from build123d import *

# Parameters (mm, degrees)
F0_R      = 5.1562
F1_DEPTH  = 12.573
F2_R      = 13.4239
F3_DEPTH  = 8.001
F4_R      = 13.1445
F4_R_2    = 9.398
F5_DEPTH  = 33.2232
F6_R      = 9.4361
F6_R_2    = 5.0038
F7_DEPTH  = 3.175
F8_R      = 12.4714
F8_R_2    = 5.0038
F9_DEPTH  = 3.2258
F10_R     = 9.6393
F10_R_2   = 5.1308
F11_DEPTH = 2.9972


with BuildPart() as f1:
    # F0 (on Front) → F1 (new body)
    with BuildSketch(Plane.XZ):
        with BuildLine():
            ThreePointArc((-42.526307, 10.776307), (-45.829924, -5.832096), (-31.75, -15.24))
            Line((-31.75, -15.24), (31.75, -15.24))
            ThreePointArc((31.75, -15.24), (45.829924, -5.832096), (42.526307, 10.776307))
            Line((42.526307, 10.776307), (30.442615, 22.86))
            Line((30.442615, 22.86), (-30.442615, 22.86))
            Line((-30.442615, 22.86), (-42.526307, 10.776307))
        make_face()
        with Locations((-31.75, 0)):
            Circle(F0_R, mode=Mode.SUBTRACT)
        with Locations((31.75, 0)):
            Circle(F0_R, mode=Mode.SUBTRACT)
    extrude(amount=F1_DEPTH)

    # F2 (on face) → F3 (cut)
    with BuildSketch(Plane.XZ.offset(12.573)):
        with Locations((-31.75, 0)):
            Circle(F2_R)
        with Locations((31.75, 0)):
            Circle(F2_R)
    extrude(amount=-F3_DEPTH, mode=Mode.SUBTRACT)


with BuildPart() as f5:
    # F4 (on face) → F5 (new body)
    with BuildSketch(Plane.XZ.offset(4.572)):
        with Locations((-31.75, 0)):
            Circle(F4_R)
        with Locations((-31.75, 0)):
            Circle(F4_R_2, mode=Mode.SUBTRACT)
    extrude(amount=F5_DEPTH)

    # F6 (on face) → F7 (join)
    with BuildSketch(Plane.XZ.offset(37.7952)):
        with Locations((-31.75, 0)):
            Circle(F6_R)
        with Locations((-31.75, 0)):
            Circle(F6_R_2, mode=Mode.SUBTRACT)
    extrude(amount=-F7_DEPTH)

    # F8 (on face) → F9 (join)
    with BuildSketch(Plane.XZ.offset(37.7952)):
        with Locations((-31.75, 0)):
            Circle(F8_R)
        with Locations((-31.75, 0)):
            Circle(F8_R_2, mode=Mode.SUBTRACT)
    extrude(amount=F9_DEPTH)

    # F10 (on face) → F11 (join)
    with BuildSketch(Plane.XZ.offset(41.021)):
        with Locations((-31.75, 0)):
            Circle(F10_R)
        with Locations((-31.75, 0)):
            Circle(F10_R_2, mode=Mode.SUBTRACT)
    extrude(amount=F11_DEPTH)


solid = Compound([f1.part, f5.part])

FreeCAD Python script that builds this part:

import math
import FreeCAD as App
import Part
import Sketcher
from FreeCAD import Vector
Q = App.Units.Quantity

doc = App.newDocument("Part")
params = doc.addObject("Spreadsheet::Sheet", "Params")
for row, (alias, value) in enumerate([
    ("sketch1_radius", "0.6 in"),
    ("sketch1_diameter", "0.406 in"),
    ("sketch1_width", "2.5 in"),
    ("pad1_length", "0.495 in"),
    ("sketch2_diameter", "1.057 in"),
    ("pocket1_length", "0.315 in"),
    ("sketch3_diameter", "0.74 in"),
    ("sketch3_diameter2", "1.035 in"),
    ("pad2_length", "1.308 in"),
    ("sketch4_diameter", "0.743 in"),
    ("sketch4_diameter2", "0.394 in"),
    ("pad3_length", "0.125 in"),
    ("sketch5_diameter", "0.982 in"),
    ("sketch5_diameter2", "0.394 in"),
    ("pad4_length", "0.127 in"),
    ("sketch6_diameter", "0.759 in"),
    ("sketch6_diameter2", "0.404 in"),
    ("pad5_length", "0.118 in"),
], start=1):
    params.set(f"A{row}", alias)
    params.set(f"B{row}", "=" + value)
    params.setAlias(f"B{row}", alias)

body = doc.addObject("PartDesign::Body", "Body")

# Sketch on XZ plane
sketch1 = body.newObject("Sketcher::SketchObject", "Sketch")
sketch1.AttachmentSupport = (doc.getObject("XZ_Plane"), [""])
sketch1.MapMode = "FlatFace"
sketch1.addGeometry(Part.ArcOfCircle(Part.Circle(Vector(-32, 0, 0), Vector(0, 0, 1), 15), math.radians(135), math.radians(270)), False)
sketch1.addGeometry(Part.LineSegment(Vector(-32, -15, 0), Vector(32, -15, 0)), False)
sketch1.addGeometry(Part.ArcOfCircle(Part.Circle(Vector(32, 0, 0), Vector(0, 0, 1), 15), math.radians(-90), math.radians(45)), False)
sketch1.addGeometry(Part.LineSegment(Vector(43, 11, 0), Vector(30, 23, 0)), False)
sketch1.addGeometry(Part.LineSegment(Vector(30, 23, 0), Vector(-30, 23, 0)), False)
sketch1.addGeometry(Part.LineSegment(Vector(-30, 23, 0), Vector(-43, 11, 0)), False)
sketch1.addGeometry(Part.Circle(Vector(-32, 0, 0), Vector(0, 0, 1), 5), False)
sketch1.addGeometry(Part.Circle(Vector(32, 0, 0), Vector(0, 0, 1), 5), False)
sketch1.addConstraint(Sketcher.Constraint("Tangent", 0, 2, 1, 1))
sketch1.addConstraint(Sketcher.Constraint("Tangent", 1, 2, 2, 1))
sketch1.addConstraint(Sketcher.Constraint("Tangent", 2, 2, 3, 1))
sketch1.addConstraint(Sketcher.Constraint("Coincident", 3, 2, 4, 1))
sketch1.addConstraint(Sketcher.Constraint("Coincident", 4, 2, 5, 1))
sketch1.addConstraint(Sketcher.Constraint("Tangent", 5, 2, 0, 1))
sketch1.addConstraint(Sketcher.Constraint("Horizontal", 1))
sketch1.addConstraint(Sketcher.Constraint("Horizontal", 4))
sketch1.addConstraint(Sketcher.Constraint("Coincident", 6, 3, 0, 3))
sketch1.addConstraint(Sketcher.Constraint("Coincident", 7, 3, 2, 3))
sketch1.addConstraint(Sketcher.Constraint("Equal", 0, 2))
sketch1.addConstraint(Sketcher.Constraint("Equal", 6, 7))
sketch1.addConstraint(Sketcher.Constraint("Symmetric", 0, 3, 2, 3, -1, 1))
sketch1.addConstraint(Sketcher.Constraint("Perpendicular", 3, 5))
sketch1.addConstraint(Sketcher.Constraint("Horizontal", 2, 2, 5, 2))
sketch1.addConstraint(Sketcher.Constraint("Radius", 0, Q("0.6 in")))
sketch1.addConstraint(Sketcher.Constraint("Diameter", 6, Q("0.406 in")))
sketch1.addConstraint(Sketcher.Constraint("DistanceX", 1, 1, 1, 2, Q("2.5 in")))
sketch1.addConstraint(Sketcher.Constraint("DistanceY", -1, 1, 3, 2, Q("0.9 in")))
sketch1.setExpression("Constraints[15]", "Params.sketch1_radius")
sketch1.setExpression("Constraints[16]", "Params.sketch1_diameter")
sketch1.setExpression("Constraints[17]", "Params.sketch1_width")
pad1 = body.newObject("PartDesign::Pad", "Pad")
pad1.Profile = sketch1
pad1.setExpression("Length", "Params.pad1_length")

# Sketch on XZ plane
sketch2 = body.newObject("Sketcher::SketchObject", "Sketch001")
sketch2.AttachmentSupport = (doc.getObject("XZ_Plane"), [""])
sketch2.MapMode = "FlatFace"
sketch2.AttachmentOffset = App.Placement(Vector(0, 0, 0.495 * 25.4), App.Rotation())
sketch2.addGeometry(Part.Circle(Vector(-32, 0, 0), Vector(0, 0, 1), 13), False)
sketch2.addGeometry(Part.Circle(Vector(32, 0, 0), Vector(0, 0, 1), 13), False)
sketch2.addConstraint(Sketcher.Constraint("Equal", 0, 1))
sketch2.addConstraint(Sketcher.Constraint("Symmetric", 0, 3, 1, 3, -1, 1))
sketch2.addConstraint(Sketcher.Constraint("PointOnObject", 0, 3, -1))
sketch2.addConstraint(Sketcher.Constraint("Diameter", 0, Q("1.057 in")))
sketch2.addConstraint(Sketcher.Constraint("DistanceX", 0, 3, 1, 3, Q("2.5 in")))
sketch2.setExpression("Constraints[3]", "Params.sketch2_diameter")
pocket1 = body.newObject("PartDesign::Pocket", "Pocket")
pocket1.Profile = sketch2
pocket1.setExpression("Length", "Params.pocket1_length")
body2 = doc.addObject("PartDesign::Body", "Body001")

# Sketch on XZ plane
sketch3 = body2.newObject("Sketcher::SketchObject", "Sketch002")
sketch3.AttachmentSupport = (doc.getObject("XZ_Plane001"), [""])
sketch3.MapMode = "FlatFace"
sketch3.AttachmentOffset = App.Placement(Vector(0, 0, 0.18 * 25.4), App.Rotation())
sketch3.addGeometry(Part.Circle(Vector(-32, 0, 0), Vector(0, 0, 1), 13), False)
sketch3.addGeometry(Part.Circle(Vector(-32, 0, 0), Vector(0, 0, 1), 9), False)
sketch3.addConstraint(Sketcher.Constraint("Coincident", 1, 3, 0, 3))
sketch3.addConstraint(Sketcher.Constraint("PointOnObject", 0, 3, -1))
sketch3.addConstraint(Sketcher.Constraint("Diameter", 1, Q("0.74 in")))
sketch3.addConstraint(Sketcher.Constraint("Diameter", 0, Q("1.035 in")))
sketch3.addConstraint(Sketcher.Constraint("DistanceX", 0, 3, -1, 1, Q("1.25 in")))
sketch3.setExpression("Constraints[2]", "Params.sketch3_diameter")
sketch3.setExpression("Constraints[3]", "Params.sketch3_diameter2")
pad2 = body2.newObject("PartDesign::Pad", "Pad001")
pad2.Profile = sketch3
pad2.setExpression("Length", "Params.pad2_length")

# Sketch on XZ plane
sketch4 = body2.newObject("Sketcher::SketchObject", "Sketch003")
sketch4.AttachmentSupport = (doc.getObject("XZ_Plane001"), [""])
sketch4.MapMode = "FlatFace"
sketch4.AttachmentOffset = App.Placement(Vector(0, 0, 1.488 * 25.4), App.Rotation())
sketch4.addGeometry(Part.Circle(Vector(-32, 0, 0), Vector(0, 0, 1), 9), False)
sketch4.addGeometry(Part.Circle(Vector(-32, 0, 0), Vector(0, 0, 1), 5), False)
sketch4.addConstraint(Sketcher.Constraint("Coincident", 1, 3, 0, 3))
sketch4.addConstraint(Sketcher.Constraint("PointOnObject", 0, 3, -1))
sketch4.addConstraint(Sketcher.Constraint("Diameter", 0, Q("0.743 in")))
sketch4.addConstraint(Sketcher.Constraint("Diameter", 1, Q("0.394 in")))
sketch4.addConstraint(Sketcher.Constraint("DistanceX", 0, 3, -1, 1, Q("1.25 in")))
sketch4.setExpression("Constraints[2]", "Params.sketch4_diameter")
sketch4.setExpression("Constraints[3]", "Params.sketch4_diameter2")
pad3 = body2.newObject("PartDesign::Pad", "Pad002")
pad3.Profile = sketch4
pad3.setExpression("Length", "Params.pad3_length")
pad3.Reversed = True

# Sketch on XZ plane
sketch5 = body2.newObject("Sketcher::SketchObject", "Sketch004")
sketch5.AttachmentSupport = (doc.getObject("XZ_Plane001"), [""])
sketch5.MapMode = "FlatFace"
sketch5.AttachmentOffset = App.Placement(Vector(0, 0, 1.488 * 25.4), App.Rotation())
sketch5.addGeometry(Part.Circle(Vector(-32, 0, 0), Vector(0, 0, 1), 12), False)
sketch5.addGeometry(Part.Circle(Vector(-32, 0, 0), Vector(0, 0, 1), 5), False)
sketch5.addConstraint(Sketcher.Constraint("Coincident", 1, 3, 0, 3))
sketch5.addConstraint(Sketcher.Constraint("PointOnObject", 0, 3, -1))
sketch5.addConstraint(Sketcher.Constraint("Diameter", 0, Q("0.982 in")))
sketch5.addConstraint(Sketcher.Constraint("Diameter", 1, Q("0.394 in")))
sketch5.addConstraint(Sketcher.Constraint("DistanceX", 0, 3, -1, 1, Q("1.25 in")))
sketch5.setExpression("Constraints[2]", "Params.sketch5_diameter")
sketch5.setExpression("Constraints[3]", "Params.sketch5_diameter2")
pad4 = body2.newObject("PartDesign::Pad", "Pad003")
pad4.Profile = sketch5
pad4.setExpression("Length", "Params.pad4_length")

# Sketch on XZ plane
sketch6 = body2.newObject("Sketcher::SketchObject", "Sketch005")
sketch6.AttachmentSupport = (doc.getObject("XZ_Plane001"), [""])
sketch6.MapMode = "FlatFace"
sketch6.AttachmentOffset = App.Placement(Vector(0, 0, 1.615 * 25.4), App.Rotation())
sketch6.addGeometry(Part.Circle(Vector(-32, 0, 0), Vector(0, 0, 1), 10), False)
sketch6.addGeometry(Part.Circle(Vector(-32, 0, 0), Vector(0, 0, 1), 5), False)
sketch6.addConstraint(Sketcher.Constraint("Coincident", 1, 3, 0, 3))
sketch6.addConstraint(Sketcher.Constraint("PointOnObject", 0, 3, -1))
sketch6.addConstraint(Sketcher.Constraint("Diameter", 0, Q("0.759 in")))
sketch6.addConstraint(Sketcher.Constraint("Diameter", 1, Q("0.404 in")))
sketch6.addConstraint(Sketcher.Constraint("DistanceX", 0, 3, -1, 1, Q("1.25 in")))
sketch6.setExpression("Constraints[2]", "Params.sketch6_diameter")
sketch6.setExpression("Constraints[3]", "Params.sketch6_diameter2")
pad5 = body2.newObject("PartDesign::Pad", "Pad004")
pad5.Profile = sketch6
pad5.setExpression("Length", "Params.pad5_length")

doc.recompute()
